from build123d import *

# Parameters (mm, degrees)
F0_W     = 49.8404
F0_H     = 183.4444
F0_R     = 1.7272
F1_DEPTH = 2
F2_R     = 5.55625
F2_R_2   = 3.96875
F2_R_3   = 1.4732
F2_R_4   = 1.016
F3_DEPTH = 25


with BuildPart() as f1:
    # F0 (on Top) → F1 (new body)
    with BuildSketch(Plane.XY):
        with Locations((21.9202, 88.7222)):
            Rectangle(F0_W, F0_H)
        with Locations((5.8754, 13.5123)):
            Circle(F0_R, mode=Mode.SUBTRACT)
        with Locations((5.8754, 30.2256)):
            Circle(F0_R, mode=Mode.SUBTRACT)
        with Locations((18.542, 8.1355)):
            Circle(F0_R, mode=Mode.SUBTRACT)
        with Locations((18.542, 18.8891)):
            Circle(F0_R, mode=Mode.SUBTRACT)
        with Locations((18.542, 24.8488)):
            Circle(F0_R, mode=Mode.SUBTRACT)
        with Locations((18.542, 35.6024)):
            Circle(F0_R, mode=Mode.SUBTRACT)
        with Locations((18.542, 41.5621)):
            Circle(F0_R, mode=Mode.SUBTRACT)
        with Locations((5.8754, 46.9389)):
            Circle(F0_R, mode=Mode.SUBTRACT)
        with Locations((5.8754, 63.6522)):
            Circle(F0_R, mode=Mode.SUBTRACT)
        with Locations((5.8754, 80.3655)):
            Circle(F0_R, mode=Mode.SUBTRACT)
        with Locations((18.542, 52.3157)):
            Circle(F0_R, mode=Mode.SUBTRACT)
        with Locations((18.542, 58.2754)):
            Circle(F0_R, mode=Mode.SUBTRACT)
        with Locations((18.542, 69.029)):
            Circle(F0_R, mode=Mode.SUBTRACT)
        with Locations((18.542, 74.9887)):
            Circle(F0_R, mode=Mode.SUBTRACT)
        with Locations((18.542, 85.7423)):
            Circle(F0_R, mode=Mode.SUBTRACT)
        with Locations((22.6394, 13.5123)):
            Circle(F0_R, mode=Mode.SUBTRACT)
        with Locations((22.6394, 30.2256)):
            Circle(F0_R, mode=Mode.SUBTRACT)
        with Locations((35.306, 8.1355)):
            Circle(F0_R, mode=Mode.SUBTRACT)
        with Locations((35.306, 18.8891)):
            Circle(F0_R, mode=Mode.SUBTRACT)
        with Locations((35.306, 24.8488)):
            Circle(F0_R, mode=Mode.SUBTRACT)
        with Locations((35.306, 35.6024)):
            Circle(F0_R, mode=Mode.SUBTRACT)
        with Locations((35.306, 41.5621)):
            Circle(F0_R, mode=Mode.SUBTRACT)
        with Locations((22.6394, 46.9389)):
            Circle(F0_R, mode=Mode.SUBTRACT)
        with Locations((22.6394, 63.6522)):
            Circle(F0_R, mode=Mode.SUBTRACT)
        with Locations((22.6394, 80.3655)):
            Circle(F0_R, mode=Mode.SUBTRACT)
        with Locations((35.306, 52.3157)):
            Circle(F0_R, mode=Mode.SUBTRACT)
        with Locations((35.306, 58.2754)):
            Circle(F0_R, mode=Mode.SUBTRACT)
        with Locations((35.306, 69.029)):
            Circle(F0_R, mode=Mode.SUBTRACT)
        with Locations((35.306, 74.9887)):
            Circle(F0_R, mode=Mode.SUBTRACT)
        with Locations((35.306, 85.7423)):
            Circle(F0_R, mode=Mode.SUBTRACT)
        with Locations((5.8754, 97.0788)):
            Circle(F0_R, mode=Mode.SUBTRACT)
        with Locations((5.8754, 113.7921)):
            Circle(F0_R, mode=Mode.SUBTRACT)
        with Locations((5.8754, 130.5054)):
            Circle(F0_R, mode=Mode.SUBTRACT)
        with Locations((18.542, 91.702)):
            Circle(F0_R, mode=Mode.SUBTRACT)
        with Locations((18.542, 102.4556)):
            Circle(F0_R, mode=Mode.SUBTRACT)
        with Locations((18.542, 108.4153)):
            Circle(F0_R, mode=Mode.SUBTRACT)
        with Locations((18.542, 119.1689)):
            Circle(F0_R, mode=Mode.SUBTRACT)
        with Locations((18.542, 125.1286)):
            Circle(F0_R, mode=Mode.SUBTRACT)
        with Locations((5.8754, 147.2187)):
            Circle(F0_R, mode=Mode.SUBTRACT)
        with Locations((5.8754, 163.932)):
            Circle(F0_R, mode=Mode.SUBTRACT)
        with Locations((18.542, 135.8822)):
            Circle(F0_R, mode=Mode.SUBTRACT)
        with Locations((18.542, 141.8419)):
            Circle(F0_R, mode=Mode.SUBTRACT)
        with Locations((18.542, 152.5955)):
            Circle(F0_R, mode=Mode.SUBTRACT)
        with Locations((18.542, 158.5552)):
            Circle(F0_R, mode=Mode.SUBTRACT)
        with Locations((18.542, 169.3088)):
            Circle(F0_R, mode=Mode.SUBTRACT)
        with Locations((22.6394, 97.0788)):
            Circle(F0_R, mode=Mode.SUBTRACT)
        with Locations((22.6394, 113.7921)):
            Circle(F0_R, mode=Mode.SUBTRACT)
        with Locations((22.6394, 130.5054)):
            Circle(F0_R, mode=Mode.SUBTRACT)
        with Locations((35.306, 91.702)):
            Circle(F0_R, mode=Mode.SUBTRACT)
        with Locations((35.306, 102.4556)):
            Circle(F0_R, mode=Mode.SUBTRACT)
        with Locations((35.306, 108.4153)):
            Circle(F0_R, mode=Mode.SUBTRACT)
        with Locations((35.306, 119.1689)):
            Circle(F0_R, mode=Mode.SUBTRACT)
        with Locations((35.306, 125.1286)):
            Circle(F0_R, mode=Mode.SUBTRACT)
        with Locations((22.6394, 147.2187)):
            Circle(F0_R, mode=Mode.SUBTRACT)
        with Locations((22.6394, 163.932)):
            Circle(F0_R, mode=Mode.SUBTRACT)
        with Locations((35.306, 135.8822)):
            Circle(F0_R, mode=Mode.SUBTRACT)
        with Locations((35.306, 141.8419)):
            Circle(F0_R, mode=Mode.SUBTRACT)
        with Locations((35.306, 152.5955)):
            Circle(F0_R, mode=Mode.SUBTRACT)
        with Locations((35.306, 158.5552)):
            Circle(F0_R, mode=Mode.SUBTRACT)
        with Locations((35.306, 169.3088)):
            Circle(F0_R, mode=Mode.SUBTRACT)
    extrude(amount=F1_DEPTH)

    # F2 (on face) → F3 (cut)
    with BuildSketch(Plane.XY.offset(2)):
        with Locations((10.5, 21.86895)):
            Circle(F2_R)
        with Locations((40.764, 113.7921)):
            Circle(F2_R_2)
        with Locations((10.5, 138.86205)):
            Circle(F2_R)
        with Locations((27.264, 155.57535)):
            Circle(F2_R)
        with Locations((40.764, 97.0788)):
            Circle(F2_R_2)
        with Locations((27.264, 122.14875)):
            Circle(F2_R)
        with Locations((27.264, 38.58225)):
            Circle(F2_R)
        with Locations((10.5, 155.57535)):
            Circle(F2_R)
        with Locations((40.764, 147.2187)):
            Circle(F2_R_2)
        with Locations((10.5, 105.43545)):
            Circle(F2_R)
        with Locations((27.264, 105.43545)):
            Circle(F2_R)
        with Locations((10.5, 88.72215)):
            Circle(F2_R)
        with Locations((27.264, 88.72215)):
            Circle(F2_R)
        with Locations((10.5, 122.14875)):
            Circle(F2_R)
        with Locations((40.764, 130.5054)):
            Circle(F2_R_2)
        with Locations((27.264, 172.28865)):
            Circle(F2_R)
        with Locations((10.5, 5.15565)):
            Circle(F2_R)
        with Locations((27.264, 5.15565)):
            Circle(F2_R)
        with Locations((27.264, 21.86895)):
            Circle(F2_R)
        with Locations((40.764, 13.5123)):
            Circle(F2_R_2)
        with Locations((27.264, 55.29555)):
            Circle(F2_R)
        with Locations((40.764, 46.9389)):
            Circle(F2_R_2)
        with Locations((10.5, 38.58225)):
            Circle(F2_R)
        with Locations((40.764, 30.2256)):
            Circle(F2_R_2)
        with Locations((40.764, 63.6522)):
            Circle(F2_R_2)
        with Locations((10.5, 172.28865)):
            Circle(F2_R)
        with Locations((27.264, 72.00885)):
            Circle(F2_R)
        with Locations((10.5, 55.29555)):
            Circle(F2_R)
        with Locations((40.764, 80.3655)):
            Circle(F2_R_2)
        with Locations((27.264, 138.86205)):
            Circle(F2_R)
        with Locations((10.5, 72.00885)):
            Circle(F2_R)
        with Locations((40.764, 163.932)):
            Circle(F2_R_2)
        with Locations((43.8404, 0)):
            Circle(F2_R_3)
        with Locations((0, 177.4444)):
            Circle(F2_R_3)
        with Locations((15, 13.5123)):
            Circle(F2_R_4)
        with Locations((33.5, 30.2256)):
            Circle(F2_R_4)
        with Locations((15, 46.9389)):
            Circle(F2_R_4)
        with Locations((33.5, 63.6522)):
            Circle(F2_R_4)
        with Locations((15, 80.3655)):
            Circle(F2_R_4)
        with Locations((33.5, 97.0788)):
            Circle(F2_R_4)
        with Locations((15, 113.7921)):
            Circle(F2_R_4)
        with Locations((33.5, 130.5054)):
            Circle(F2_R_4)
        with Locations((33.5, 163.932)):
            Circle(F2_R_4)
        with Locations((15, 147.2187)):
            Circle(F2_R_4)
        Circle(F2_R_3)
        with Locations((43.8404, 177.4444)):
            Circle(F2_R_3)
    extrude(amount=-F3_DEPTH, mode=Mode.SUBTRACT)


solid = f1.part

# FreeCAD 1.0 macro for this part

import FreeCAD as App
import Part
import Sketcher
Q = App.Units.Quantity

doc = App.newDocument("Part")
body = doc.addObject("PartDesign::Body", "Body")

sketch1 = body.newObject("Sketcher::SketchObject", "Sketch")
sketch1.AttachmentSupport = (doc.getObject("XY_Plane"), [""])
sketch1.MapMode = "FlatFace"
sketch1.addGeometry([
    Part.LineSegment(App.Vector(-3, 180.4444, 0), App.Vector(-3, -3, 0)),
    Part.LineSegment(App.Vector(-3, -3, 0), App.Vector(46.8404, -3, 0)),
    Part.LineSegment(App.Vector(46.8404, -3, 0), App.Vector(46.8404, 180.4444, 0)),
    Part.LineSegment(App.Vector(46.8404, 180.4444, 0), App.Vector(-3, 180.4444, 0)),
    Part.Circle(App.Vector(5.8754, 13.5123, 0), App.Vector(0, 0, 1), 1.7272),
    Part.Circle(App.Vector(5.8754, 30.2256, 0), App.Vector(0, 0, 1), 1.7272),
    Part.Circle(App.Vector(5.8754, 46.9389, 0), App.Vector(0, 0, 1), 1.7272),
    Part.Circle(App.Vector(18.542, 8.1355, 0), App.Vector(0, 0, 1), 1.7272),
    Part.Circle(App.Vector(18.542, 18.8891, 0), App.Vector(0, 0, 1), 1.7272),
    Part.Circle(App.Vector(18.542, 24.8488, 0), App.Vector(0, 0, 1), 1.7272),
    Part.Circle(App.Vector(18.542, 35.6024, 0), App.Vector(0, 0, 1), 1.7272),
    Part.Circle(App.Vector(18.542, 41.5621, 0), App.Vector(0, 0, 1), 1.7272),
    Part.Circle(App.Vector(5.8754, 63.6522, 0), App.Vector(0, 0, 1), 1.7272),
    Part.Circle(App.Vector(5.8754, 80.3655, 0), App.Vector(0, 0, 1), 1.7272),
    Part.Circle(App.Vector(18.542, 52.3157, 0), App.Vector(0, 0, 1), 1.7272),
    Part.Circle(App.Vector(18.542, 58.2754, 0), App.Vector(0, 0, 1), 1.7272),
    Part.Circle(App.Vector(18.542, 69.029, 0), App.Vector(0, 0, 1), 1.7272),
    Part.Circle(App.Vector(18.542, 74.9887, 0), App.Vector(0, 0, 1), 1.7272),
    Part.Circle(App.Vector(18.542, 85.7423, 0), App.Vector(0, 0, 1), 1.7272),
    Part.Circle(App.Vector(22.6394, 13.5123, 0), App.Vector(0, 0, 1), 1.7272),
    Part.Circle(App.Vector(22.6394, 30.2256, 0), App.Vector(0, 0, 1), 1.7272),
    Part.Circle(App.Vector(22.6394, 46.9389, 0), App.Vector(0, 0, 1), 1.7272),
    Part.Circle(App.Vector(35.306, 8.1355, 0), App.Vector(0, 0, 1), 1.7272),
    Part.Circle(App.Vector(35.306, 18.8891, 0), App.Vector(0, 0, 1), 1.7272),
    Part.Circle(App.Vector(35.306, 24.8488, 0), App.Vector(0, 0, 1), 1.7272),
    Part.Circle(App.Vector(35.306, 35.6024, 0), App.Vector(0, 0, 1), 1.7272),
    Part.Circle(App.Vector(35.306, 41.5621, 0), App.Vector(0, 0, 1), 1.7272),
    Part.Circle(App.Vector(22.6394, 63.6522, 0), App.Vector(0, 0, 1), 1.7272),
    Part.Circle(App.Vector(22.6394, 80.3655, 0), App.Vector(0, 0, 1), 1.7272),
    Part.Circle(App.Vector(35.306, 52.3157, 0), App.Vector(0, 0, 1), 1.7272),
    Part.Circle(App.Vector(35.306, 58.2754, 0), App.Vector(0, 0, 1), 1.7272),
    Part.Circle(App.Vector(35.306, 69.029, 0), App.Vector(0, 0, 1), 1.7272),
    Part.Circle(App.Vector(35.306, 74.9887, 0), App.Vector(0, 0, 1), 1.7272),
    Part.Circle(App.Vector(35.306, 85.7423, 0), App.Vector(0, 0, 1), 1.7272),
    Part.Circle(App.Vector(5.8754, 97.0788, 0), App.Vector(0, 0, 1), 1.7272),
    Part.Circle(App.Vector(5.8754, 113.7921, 0), App.Vector(0, 0, 1), 1.7272),
    Part.Circle(App.Vector(18.542, 91.702, 0), App.Vector(0, 0, 1), 1.7272),
    Part.Circle(App.Vector(18.542, 102.4556, 0), App.Vector(0, 0, 1), 1.7272),
    Part.Circle(App.Vector(18.542, 108.4153, 0), App.Vector(0, 0, 1), 1.7272),
    Part.Circle(App.Vector(18.542, 119.1689, 0), App.Vector(0, 0, 1), 1.7272),
    Part.Circle(App.Vector(18.542, 125.1286, 0), App.Vector(0, 0, 1), 1.7272),
    Part.Circle(App.Vector(5.8754, 130.5054, 0), App.Vector(0, 0, 1), 1.7272),
    Part.Circle(App.Vector(5.8754, 147.2187, 0), App.Vector(0, 0, 1), 1.7272),
    Part.Circle(App.Vector(5.8754, 163.932, 0), App.Vector(0, 0, 1), 1.7272),
    Part.Circle(App.Vector(18.542, 135.8822, 0), App.Vector(0, 0, 1), 1.7272),
    Part.Circle(App.Vector(18.542, 141.8419, 0), App.Vector(0, 0, 1), 1.7272),
    Part.Circle(App.Vector(18.542, 152.5955, 0), App.Vector(0, 0, 1), 1.7272),
    Part.Circle(App.Vector(18.542, 158.5552, 0), App.Vector(0, 0, 1), 1.7272),
    Part.Circle(App.Vector(18.542, 169.3088, 0), App.Vector(0, 0, 1), 1.7272),
    Part.Circle(App.Vector(22.6394, 97.0788, 0), App.Vector(0, 0, 1), 1.7272),
    Part.Circle(App.Vector(22.6394, 113.7921, 0), App.Vector(0, 0, 1), 1.7272),
    Part.Circle(App.Vector(35.306, 91.702, 0), App.Vector(0, 0, 1), 1.7272),
    Part.Circle(App.Vector(35.306, 102.4556, 0), App.Vector(0, 0, 1), 1.7272),
    Part.Circle(App.Vector(35.306, 108.4153, 0), App.Vector(0, 0, 1), 1.7272),
    Part.Circle(App.Vector(35.306, 119.1689, 0), App.Vector(0, 0, 1), 1.7272),
    Part.Circle(App.Vector(35.306, 125.1286, 0), App.Vector(0, 0, 1), 1.7272),
    Part.Circle(App.Vector(22.6394, 130.5054, 0), App.Vector(0, 0, 1), 1.7272),
    Part.Circle(App.Vector(22.6394, 147.2187, 0), App.Vector(0, 0, 1), 1.7272),
    Part.Circle(App.Vector(22.6394, 163.932, 0), App.Vector(0, 0, 1), 1.7272),
    Part.Circle(App.Vector(35.306, 135.8822, 0), App.Vector(0, 0, 1), 1.7272),
    Part.Circle(App.Vector(35.306, 141.8419, 0), App.Vector(0, 0, 1), 1.7272),
    Part.Circle(App.Vector(35.306, 152.5955, 0), App.Vector(0, 0, 1), 1.7272),
    Part.Circle(App.Vector(35.306, 158.5552, 0), App.Vector(0, 0, 1), 1.7272),
    Part.Circle(App.Vector(35.306, 169.3088, 0), App.Vector(0, 0, 1), 1.7272),
], False)
sketch1.addConstraint([
    Sketcher.Constraint("Coincident", 0, 2, 1, 1),
    Sketcher.Constraint("Coincident", 1, 2, 2, 1),
    Sketcher.Constraint("Coincident", 2, 2, 3, 1),
    Sketcher.Constraint("Coincident", 3, 2, 0, 1),
    Sketcher.Constraint("Vertical", 0),
    Sketcher.Constraint("Horizontal", 1),
    Sketcher.Constraint("Vertical", 2),
    Sketcher.Constraint("Horizontal", 3),
    Sketcher.Constraint("Equal", 4, 5),
    Sketcher.Constraint("Equal", 5, 6),
    Sketcher.Constraint("Equal", 6, 7),
    Sketcher.Constraint("Equal", 7, 8),
    Sketcher.Constraint("Equal", 8, 9),
    Sketcher.Constraint("Equal", 9, 10),
    Sketcher.Constraint("Equal", 10, 11),
    Sketcher.Constraint("Equal", 11, 12),
    Sketcher.Constraint("Equal", 12, 13),
    Sketcher.Constraint("Equal", 13, 14),
    Sketcher.Constraint("Equal", 14, 15),
    Sketcher.Constraint("Equal", 15, 16),
    Sketcher.Constraint("Equal", 16, 17),
    Sketcher.Constraint("Equal", 17, 18),
    Sketcher.Constraint("Equal", 18, 19),
    Sketcher.Constraint("Equal", 19, 20),
    Sketcher.Constraint("Equal", 20, 21),
    Sketcher.Constraint("Equal", 21, 22),
    Sketcher.Constraint("Equal", 22, 23),
    Sketcher.Constraint("Equal", 23, 24),
    Sketcher.Constraint("Equal", 24, 25),
    Sketcher.Constraint("Equal", 25, 26),
    Sketcher.Constraint("Equal", 26, 27),
    Sketcher.Constraint("Equal", 27, 28),
    Sketcher.Constraint("Equal", 28, 29),
    Sketcher.Constraint("Equal", 29, 30),
    Sketcher.Constraint("Equal", 30, 31),
    Sketcher.Constraint("Equal", 31, 32),
    Sketcher.Constraint("Equal", 32, 33),
    Sketcher.Constraint("Equal", 33, 34),
    Sketcher.Constraint("Equal", 34, 35),
    Sketcher.Constraint("Equal", 35, 36),
    Sketcher.Constraint("Equal", 36, 37),
    Sketcher.Constraint("Equal", 37, 38),
    Sketcher.Constraint("Equal", 38, 39),
    Sketcher.Constraint("Equal", 39, 40),
    Sketcher.Constraint("Equal", 40, 41),
    Sketcher.Constraint("Equal", 41, 42),
    Sketcher.Constraint("Equal", 42, 43),
    Sketcher.Constraint("Equal", 43, 44),
    Sketcher.Constraint("Equal", 44, 45),
    Sketcher.Constraint("Equal", 45, 46),
    Sketcher.Constraint("Equal", 46, 47),
    Sketcher.Constraint("Equal", 47, 48),
    Sketcher.Constraint("Equal", 48, 49),
    Sketcher.Constraint("Equal", 49, 50),
    Sketcher.Constraint("Equal", 50, 51),
    Sketcher.Constraint("Equal", 51, 52),
    Sketcher.Constraint("Equal", 52, 53),
    Sketcher.Constraint("Equal", 53, 54),
    Sketcher.Constraint("Equal", 54, 55),
    Sketcher.Constraint("Equal", 55, 56),
    Sketcher.Constraint("Equal", 56, 57),
    Sketcher.Constraint("Equal", 57, 58),
    Sketcher.Constraint("Equal", 58, 59),
    Sketcher.Constraint("Equal", 59, 60),
    Sketcher.Constraint("Equal", 60, 61),
    Sketcher.Constraint("Equal", 61, 62),
    Sketcher.Constraint("Equal", 62, 63),
    Sketcher.Constraint("Horizontal", 4, 3, 19, 3),
    Sketcher.Constraint("Horizontal", 5, 3, 20, 3),
    Sketcher.Constraint("Horizontal", 6, 3, 21, 3),
    Sketcher.Constraint("Horizontal", 7, 3, 22, 3),
    Sketcher.Constraint("Horizontal", 8, 3, 23, 3),
    Sketcher.Constraint("Horizontal", 9, 3, 24, 3),
    Sketcher.Constraint("Horizontal", 10, 3, 25, 3),
    Sketcher.Constraint("Horizontal", 11, 3, 26, 3),
    Sketcher.Constraint("Horizontal", 12, 3, 27, 3),
    Sketcher.Constraint("Horizontal", 13, 3, 28, 3),
    Sketcher.Constraint("Horizontal", 14, 3, 29, 3),
    Sketcher.Constraint("Horizontal", 15, 3, 30, 3),
    Sketcher.Constraint("Horizontal", 16, 3, 31, 3),
    Sketcher.Constraint("Horizontal", 17, 3, 32, 3),
    Sketcher.Constraint("Horizontal", 18, 3, 33, 3),
    Sketcher.Constraint("Horizontal", 34, 3, 49, 3),
    Sketcher.Constraint("Horizontal", 35, 3, 50, 3),
    Sketcher.Constraint("Horizontal", 36, 3, 51, 3),
    Sketcher.Constraint("Horizontal", 37, 3, 52, 3),
    Sketcher.Constraint("Horizontal", 38, 3, 53, 3),
    Sketcher.Constraint("Horizontal", 39, 3, 54, 3),
    Sketcher.Constraint("Horizontal", 40, 3, 55, 3),
    Sketcher.Constraint("Horizontal", 41, 3, 56, 3),
    Sketcher.Constraint("Horizontal", 42, 3, 57, 3),
    Sketcher.Constraint("Horizontal", 43, 3, 58, 3),
    Sketcher.Constraint("Horizontal", 44, 3, 59, 3),
    Sketcher.Constraint("Horizontal", 45, 3, 60, 3),
    Sketcher.Constraint("Horizontal", 46, 3, 61, 3),
    Sketcher.Constraint("Horizontal", 47, 3, 62, 3),
    Sketcher.Constraint("Horizontal", 48, 3, 63, 3),
    Sketcher.Constraint("Vertical", 4, 3, 5, 3),
    Sketcher.Constraint("Vertical", 5, 3, 6, 3),
    Sketcher.Constraint("Vertical", 7, 3, 8, 3),
    Sketcher.Constraint("Vertical", 8, 3, 9, 3),
    Sketcher.Constraint("Vertical", 9, 3, 10, 3),
    Sketcher.Constraint("Vertical", 10, 3, 11, 3),
    Sketcher.Constraint("Vertical", 6, 3, 12, 3),
    Sketcher.Constraint("Vertical", 12, 3, 13, 3),
    Sketcher.Constraint("Vertical", 11, 3, 14, 3),
    Sketcher.Constraint("Vertical", 14, 3, 15, 3),
    Sketcher.Constraint("Vertical", 15, 3, 16, 3),
    Sketcher.Constraint("Vertical", 16, 3, 17, 3),
    Sketcher.Constraint("Vertical", 17, 3, 18, 3),
    Sketcher.Constraint("Vertical", 19, 3, 20, 3),
    Sketcher.Constraint("Vertical", 20, 3, 21, 3),
    Sketcher.Constraint("Vertical", 22, 3, 23, 3),
    Sketcher.Constraint("Vertical", 23, 3, 24, 3),
    Sketcher.Constraint("Vertical", 24, 3, 25, 3),
    Sketcher.Constraint("Vertical", 25, 3, 26, 3),
    Sketcher.Constraint("Vertical", 21, 3, 27, 3),
    Sketcher.Constraint("Vertical", 27, 3, 28, 3),
    Sketcher.Constraint("Vertical", 26, 3, 29, 3),
    Sketcher.Constraint("Vertical", 29, 3, 30, 3),
    Sketcher.Constraint("Vertical", 30, 3, 31, 3),
    Sketcher.Constraint("Vertical", 31, 3, 32, 3),
    Sketcher.Constraint("Vertical", 32, 3, 33, 3),
    Sketcher.Constraint("Vertical", 13, 3, 34, 3),
    Sketcher.Constraint("Vertical", 34, 3, 35, 3),
    Sketcher.Constraint("Vertical", 18, 3, 36, 3),
    Sketcher.Constraint("Vertical", 36, 3, 37, 3),
    Sketcher.Constraint("Vertical", 37, 3, 38, 3),
    Sketcher.Constraint("Vertical", 38, 3, 39, 3),
    Sketcher.Constraint("Vertical", 39, 3, 40, 3),
    Sketcher.Constraint("Vertical", 35, 3, 41, 3),
    Sketcher.Constraint("Vertical", 41, 3, 42, 3),
    Sketcher.Constraint("Vertical", 42, 3, 43, 3),
    Sketcher.Constraint("Vertical", 40, 3, 44, 3),
    Sketcher.Constraint("Vertical", 44, 3, 45, 3),
    Sketcher.Constraint("Vertical", 45, 3, 46, 3),
    Sketcher.Constraint("Vertical", 46, 3, 47, 3),
    Sketcher.Constraint("Vertical", 47, 3, 48, 3),
    Sketcher.Constraint("Vertical", 28, 3, 49, 3),
    Sketcher.Constraint("Vertical", 49, 3, 50, 3),
    Sketcher.Constraint("Vertical", 33, 3, 51, 3),
    Sketcher.Constraint("Vertical", 51, 3, 52, 3),
    Sketcher.Constraint("Vertical", 52, 3, 53, 3),
    Sketcher.Constraint("Vertical", 53, 3, 54, 3),
    Sketcher.Constraint("Vertical", 54, 3, 55, 3),
    Sketcher.Constraint("Vertical", 50, 3, 56, 3),
    Sketcher.Constraint("Vertical", 56, 3, 57, 3),
    Sketcher.Constraint("Vertical", 57, 3, 58, 3),
    Sketcher.Constraint("Vertical", 55, 3, 59, 3),
    Sketcher.Constraint("Vertical", 59, 3, 60, 3),
    Sketcher.Constraint("Vertical", 60, 3, 61, 3),
    Sketcher.Constraint("Vertical", 61, 3, 62, 3),
    Sketcher.Constraint("Vertical", 62, 3, 63, 3),
    Sketcher.Constraint("Diameter", 4, Q("0.136 in")),
    Sketcher.Constraint("DistanceX", -1, 1, 7, 3, Q("0.73 in")),
    Sketcher.Constraint("DistanceX", -1, 1, 22, 3, Q("1.39 in")),
    Sketcher.Constraint("DistanceY", -1, 1, 34, 3, Q("3.822 in")),
    Sketcher.Constraint("DistanceX", 1, 1, 1, 2, Q("49.8404 mm")),
    Sketcher.Constraint("DistanceY", 0, 2, 0, 1, Q("183.4444 mm")),
    Sketcher.Constraint("DistanceX", -1, 1, 4, 3, Q("5.8754 mm")),
    Sketcher.Constraint("DistanceY", -1, 1, 4, 3, Q("13.5123 mm")),
    Sketcher.Constraint("DistanceY", -1, 1, 5, 3, Q("30.2256 mm")),
    Sketcher.Constraint("DistanceY", -1, 1, 6, 3, Q("46.9389 mm")),
    Sketcher.Constraint("DistanceY", -1, 1, 7, 3, Q("8.1355 mm")),
    Sketcher.Constraint("DistanceY", -1, 1, 8, 3, Q("18.8891 mm")),
    Sketcher.Constraint("DistanceY", -1, 1, 9, 3, Q("24.8488 mm")),
    Sketcher.Constraint("DistanceY", -1, 1, 10, 3, Q("35.6024 mm")),
    Sketcher.Constraint("DistanceY", -1, 1, 11, 3, Q("41.5621 mm")),
    Sketcher.Constraint("DistanceY", -1, 1, 12, 3, Q("63.6522 mm")),
    Sketcher.Constraint("DistanceY", -1, 1, 13, 3, Q("80.3655 mm")),
    Sketcher.Constraint("DistanceY", -1, 1, 14, 3, Q("52.3157 mm")),
    Sketcher.Constraint("DistanceY", -1, 1, 15, 3, Q("58.2754 mm")),
    Sketcher.Constraint("DistanceY", -1, 1, 16, 3, Q("69.029 mm")),
    Sketcher.Constraint("DistanceY", -1, 1, 17, 3, Q("74.9887 mm")),
    Sketcher.Constraint("DistanceY", -1, 1, 18, 3, Q("85.7423 mm")),
    Sketcher.Constraint("DistanceX", -1, 1, 19, 3, Q("22.6394 mm")),
    Sketcher.Constraint("DistanceY", -1, 1, 35, 3, Q("113.7921 mm")),
    Sketcher.Constraint("DistanceY", -1, 1, 36, 3, Q("91.702 mm")),
    Sketcher.Constraint("DistanceY", -1, 1, 37, 3, Q("102.4556 mm")),
    Sketcher.Constraint("DistanceY", -1, 1, 38, 3, Q("108.4153 mm")),
    Sketcher.Constraint("DistanceY", -1, 1, 39, 3, Q("119.1689 mm")),
    Sketcher.Constraint("DistanceY", -1, 1, 40, 3, Q("125.1286 mm")),
    Sketcher.Constraint("DistanceY", -1, 1, 41, 3, Q("130.5054 mm")),
    Sketcher.Constraint("DistanceY", -1, 1, 42, 3, Q("147.2187 mm")),
    Sketcher.Constraint("DistanceY", -1, 1, 43, 3, Q("163.932 mm")),
    Sketcher.Constraint("DistanceY", -1, 1, 44, 3, Q("135.8822 mm")),
    Sketcher.Constraint("DistanceY", -1, 1, 45, 3, Q("141.8419 mm")),
    Sketcher.Constraint("DistanceY", -1, 1, 46, 3, Q("152.5955 mm")),
    Sketcher.Constraint("DistanceY", -1, 1, 47, 3, Q("158.5552 mm")),
    Sketcher.Constraint("DistanceY", -1, 1, 48, 3, Q("169.3088 mm")),
    Sketcher.Constraint("DistanceX", 0, 2, -1, 1, Q("3 mm")),
    Sketcher.Constraint("DistanceY", 0, 2, -1, 1, Q("3 mm")),
])
pad1 = body.newObject("PartDesign::Pad", "Pad")
pad1.Profile = sketch1
pad1.Length = 2

sketch2 = body.newObject("Sketcher::SketchObject", "Sketch001")
sketch2.AttachmentSupport = (doc.getObject("XY_Plane"), [""])
sketch2.MapMode = "FlatFace"
sketch2.AttachmentOffset = App.Placement(App.Vector(0, 0, 2), App.Rotation())
sketch2.addGeometry([
    Part.Circle(App.Vector(10.5, 21.86895, 0), App.Vector(0, 0, 1), 5.55625),
    Part.Circle(App.Vector(40.764, 113.7921, 0), App.Vector(0, 0, 1), 3.96875),
    Part.Circle(App.Vector(10.5, 138.86205, 0), App.Vector(0, 0, 1), 5.55625),
    Part.Circle(App.Vector(27.264, 155.57535, 0), App.Vector(0, 0, 1), 5.55625),
    Part.Circle(App.Vector(40.764, 97.0788, 0), App.Vector(0, 0, 1), 3.96875),
    Part.Circle(App.Vector(27.264, 122.14875, 0), App.Vector(0, 0, 1), 5.55625),
    Part.Circle(App.Vector(27.264, 38.58225, 0), App.Vector(0, 0, 1), 5.55625),
    Part.Circle(App.Vector(10.5, 155.57535, 0), App.Vector(0, 0, 1), 5.55625),
    Part.Circle(App.Vector(40.764, 147.2187, 0), App.Vector(0, 0, 1), 3.96875),
    Part.Circle(App.Vector(10.5, 105.43545, 0), App.Vector(0, 0, 1), 5.55625),
    Part.Circle(App.Vector(27.264, 105.43545, 0), App.Vector(0, 0, 1), 5.55625),
    Part.Circle(App.Vector(10.5, 88.72215, 0), App.Vector(0, 0, 1), 5.55625),
    Part.Circle(App.Vector(27.264, 88.72215, 0), App.Vector(0, 0, 1), 5.55625),
    Part.Circle(App.Vector(10.5, 122.14875, 0), App.Vector(0, 0, 1), 5.55625),
    Part.Circle(App.Vector(40.764, 130.5054, 0), App.Vector(0, 0, 1), 3.96875),
    Part.Circle(App.Vector(27.264, 172.28865, 0), App.Vector(0, 0, 1), 5.55625),
    Part.Circle(App.Vector(10.5, 5.15565, 0), App.Vector(0, 0, 1), 5.55625),
    Part.Circle(App.Vector(27.264, 5.15565, 0), App.Vector(0, 0, 1), 5.55625),
    Part.Circle(App.Vector(27.264, 21.86895, 0), App.Vector(0, 0, 1), 5.55625),
    Part.Circle(App.Vector(40.764, 13.5123, 0), App.Vector(0, 0, 1), 3.96875),
    Part.Circle(App.Vector(27.264, 55.29555, 0), App.Vector(0, 0, 1), 5.55625),
    Part.Circle(App.Vector(40.764, 46.9389, 0), App.Vector(0, 0, 1), 3.96875),
    Part.Circle(App.Vector(10.5, 38.58225, 0), App.Vector(0, 0, 1), 5.55625),
    Part.Circle(App.Vector(40.764, 30.2256, 0), App.Vector(0, 0, 1), 3.96875),
    Part.Circle(App.Vector(40.764, 63.6522, 0), App.Vector(0, 0, 1), 3.96875),
    Part.Circle(App.Vector(10.5, 172.28865, 0), App.Vector(0, 0, 1), 5.55625),
    Part.Circle(App.Vector(27.264, 72.00885, 0), App.Vector(0, 0, 1), 5.55625),
    Part.Circle(App.Vector(10.5, 55.29555, 0), App.Vector(0, 0, 1), 5.55625),
    Part.Circle(App.Vector(40.764, 80.3655, 0), App.Vector(0, 0, 1), 3.96875),
    Part.Circle(App.Vector(27.264, 138.86205, 0), App.Vector(0, 0, 1), 5.55625),
    Part.Circle(App.Vector(10.5, 72.00885, 0), App.Vector(0, 0, 1), 5.55625),
    Part.Circle(App.Vector(40.764, 163.932, 0), App.Vector(0, 0, 1), 3.96875),
    Part.Circle(App.Vector(43.8404, 0, 0), App.Vector(0, 0, 1), 1.4732),
    Part.Circle(App.Vector(0, 177.4444, 0), App.Vector(0, 0, 1), 1.4732),
    Part.Circle(App.Vector(15, 13.5123, 0), App.Vector(0, 0, 1), 1.016),
    Part.Circle(App.Vector(33.5, 30.2256, 0), App.Vector(0, 0, 1), 1.016),
    Part.Circle(App.Vector(15, 46.9389, 0), App.Vector(0, 0, 1), 1.016),
    Part.Circle(App.Vector(33.5, 63.6522, 0), App.Vector(0, 0, 1), 1.016),
    Part.Circle(App.Vector(15, 80.3655, 0), App.Vector(0, 0, 1), 1.016),
    Part.Circle(App.Vector(33.5, 97.0788, 0), App.Vector(0, 0, 1), 1.016),
    Part.Circle(App.Vector(15, 113.7921, 0), App.Vector(0, 0, 1), 1.016),
    Part.Circle(App.Vector(33.5, 130.5054, 0), App.Vector(0, 0, 1), 1.016),
    Part.Circle(App.Vector(33.5, 163.932, 0), App.Vector(0, 0, 1), 1.016),
    Part.Circle(App.Vector(15, 147.2187, 0), App.Vector(0, 0, 1), 1.016),
    Part.Circle(App.Vector(0, 0, 0), App.Vector(0, 0, 1), 1.4732),
    Part.Circle(App.Vector(43.8404, 177.4444, 0), App.Vector(0, 0, 1), 1.4732),
], False)
sketch2.addConstraint([
    Sketcher.Constraint("Coincident", 44, 3, -1, 1),
    Sketcher.Constraint("Equal", 0, 2),
    Sketcher.Constraint("Equal", 2, 3),
    Sketcher.Constraint("Equal", 1, 4),
    Sketcher.Constraint("Equal", 3, 5),
    Sketcher.Constraint("Equal", 5, 6),
    Sketcher.Constraint("Equal", 6, 7),
    Sketcher.Constraint("Equal", 4, 8),
    Sketcher.Constraint("Equal", 7, 9),
    Sketcher.Constraint("Equal", 9, 10),
    Sketcher.Constraint("Equal", 10, 11),
    Sketcher.Constraint("Equal", 11, 12),
    Sketcher.Constraint("Equal", 12, 13),
    Sketcher.Constraint("Equal", 8, 14),
    Sketcher.Constraint("Equal", 13, 15),
    Sketcher.Constraint("Equal", 15, 16),
    Sketcher.Constraint("Equal", 16, 17),
    Sketcher.Constraint("Equal", 17, 18),
    Sketcher.Constraint("Equal", 14, 19),
    Sketcher.Constraint("Equal", 18, 20),
    Sketcher.Constraint("Equal", 19, 21),
    Sketcher.Constraint("Equal", 20, 22),
    Sketcher.Constraint("Equal", 21, 23),
    Sketcher.Constraint("Equal", 23, 24),
    Sketcher.Constraint("Equal", 22, 25),
    Sketcher.Constraint("Equal", 25, 26),
    Sketcher.Constraint("Equal", 26, 27),
    Sketcher.Constraint("Equal", 24, 28),
    Sketcher.Constraint("Equal", 27, 29),
    Sketcher.Constraint("Equal", 29, 30),
    Sketcher.Constraint("Equal", 28, 31),
    Sketcher.Constraint("Equal", 32, 33),
    Sketcher.Constraint("Equal", 34, 35),
    Sketcher.Constraint("Equal", 35, 36),
    Sketcher.Constraint("Equal", 36, 37),
    Sketcher.Constraint("Equal", 37, 38),
    Sketcher.Constraint("Equal", 38, 39),
    Sketcher.Constraint("Equal", 39, 40),
    Sketcher.Constraint("Equal", 40, 41),
    Sketcher.Constraint("Equal", 41, 42),
    Sketcher.Constraint("Equal", 42, 43),
    Sketcher.Constraint("Equal", 33, 44),
    Sketcher.Constraint("Equal", 44, 45),
    Sketcher.Constraint("PointOnObject", 32, 3, -1),
    Sketcher.Constraint("PointOnObject", 33, 3, -2),
    Sketcher.Constraint("Horizontal", 3, 3, 7, 3),
    Sketcher.Constraint("Horizontal", 9, 3, 10, 3),
    Sketcher.Constraint("Horizontal", 11, 3, 12, 3),
    Sketcher.Constraint("Horizontal", 5, 3, 13, 3),
    Sketcher.Constraint("Horizontal", 16, 3, 17, 3),
    Sketcher.Constraint("Horizontal", 0, 3, 18, 3),
    Sketcher.Constraint("Horizontal", 6, 3, 22, 3),
    Sketcher.Constraint("Horizontal", 15, 3, 25, 3),
    Sketcher.Constraint("Horizontal", 20, 3, 27, 3),
    Sketcher.Constraint("Horizontal", 2, 3, 29, 3),
    Sketcher.Constraint("Horizontal", 26, 3, 30, 3),
    Sketcher.Constraint("Horizontal", 19, 3, 34, 3),
    Sketcher.Constraint("Horizontal", 23, 3, 35, 3),
    Sketcher.Constraint("Horizontal", 21, 3, 36, 3),
    Sketcher.Constraint("Horizontal", 24, 3, 37, 3),
    Sketcher.Constraint("Horizontal", 28, 3, 38, 3),
    Sketcher.Constraint("Horizontal", 4, 3, 39, 3),
    Sketcher.Constraint("Horizontal", 1, 3, 40, 3),
    Sketcher.Constraint("Horizontal", 14, 3, 41, 3),
    Sketcher.Constraint("Horizontal", 31, 3, 42, 3),
    Sketcher.Constraint("Horizontal", 8, 3, 43, 3),
    Sketcher.Constraint("Horizontal", 33, 3, 45, 3),
    Sketcher.Constraint("Vertical", 0, 3, 2, 3),
    Sketcher.Constraint("Vertical", 1, 3, 4, 3),
    Sketcher.Constraint("Vertical", 3, 3, 5, 3),
    Sketcher.Constraint("Vertical", 5, 3, 6, 3),
    Sketcher.Constraint("Vertical", 2, 3, 7, 3),
    Sketcher.Constraint("Vertical", 4, 3, 8, 3),
    Sketcher.Constraint("Vertical", 7, 3, 9, 3),
    Sketcher.Constraint("Vertical", 6, 3, 10, 3),
    Sketcher.Constraint("Vertical", 9, 3, 11, 3),
    Sketcher.Constraint("Vertical", 10, 3, 12, 3),
    Sketcher.Constraint("Vertical", 11, 3, 13, 3),
    Sketcher.Constraint("Vertical", 8, 3, 14, 3),
    Sketcher.Constraint("Vertical", 12, 3, 15, 3),
    Sketcher.Constraint("Vertical", 13, 3, 16, 3),
    Sketcher.Constraint("Vertical", 15, 3, 17, 3),
    Sketcher.Constraint("Vertical", 17, 3, 18, 3),
    Sketcher.Constraint("Vertical", 14, 3, 19, 3),
    Sketcher.Constraint("Vertical", 18, 3, 20, 3),
    Sketcher.Constraint("Vertical", 19, 3, 21, 3),
    Sketcher.Constraint("Vertical", 16, 3, 22, 3),
    Sketcher.Constraint("Vertical", 21, 3, 23, 3),
    Sketcher.Constraint("Vertical", 23, 3, 24, 3),
    Sketcher.Constraint("Vertical", 22, 3, 25, 3),
    Sketcher.Constraint("Vertical", 20, 3, 26, 3),
    Sketcher.Constraint("Vertical", 25, 3, 27, 3),
    Sketcher.Constraint("Vertical", 24, 3, 28, 3),
    Sketcher.Constraint("Vertical", 26, 3, 29, 3),
    Sketcher.Constraint("Vertical", 27, 3, 30, 3),
    Sketcher.Constraint("Vertical", 28, 3, 31, 3),
    Sketcher.Constraint("Vertical", 34, 3, 36, 3),
    Sketcher.Constraint("Vertical", 35, 3, 37, 3),
    Sketcher.Constraint("Vertical", 36, 3, 38, 3),
    Sketcher.Constraint("Vertical", 37, 3, 39, 3),
    Sketcher.Constraint("Vertical", 38, 3, 40, 3),
    Sketcher.Constraint("Vertical", 39, 3, 41, 3),
    Sketcher.Constraint("Vertical", 41, 3, 42, 3),
    Sketcher.Constraint("Vertical", 40, 3, 43, 3),
    Sketcher.Constraint("Vertical", 32, 3, 45, 3),
    Sketcher.Constraint("Diameter", 34, Q("0.08 in")),
    Sketcher.Constraint("Diameter", 0, Q("0.4375 in")),
    Sketcher.Constraint("Diameter", 1, Q("0.3125 in")),
    Sketcher.Constraint("Diameter", 32, Q("0.116 in")),
    Sketcher.Constraint("DistanceX", 2, 3, 3, 3, Q("0.66 in")),
    Sketcher.Constraint("DistanceY", -1, 1, 4, 3, Q("3.822 in")),
    Sketcher.Constraint("DistanceX", -1, 1, 32, 3, Q("1.726 in")),
    Sketcher.Constraint("DistanceY", -1, 1, 33, 3, Q("6.986 in")),
    Sketcher.Constraint("DistanceX", -1, 1, 0, 3, Q("10.5 mm")),
    Sketcher.Constraint("DistanceX", -1, 1, 1, 3, Q("40.764 mm")),
    Sketcher.Constraint("DistanceY", -1, 1, 1, 3, Q("113.7921 mm")),
    Sketcher.Constraint("DistanceY", -1, 1, 8, 3, Q("147.2187 mm")),
    Sketcher.Constraint("DistanceY", -1, 1, 14, 3, Q("130.5054 mm")),
    Sketcher.Constraint("DistanceY", -1, 1, 19, 3, Q("13.5123 mm")),
    Sketcher.Constraint("DistanceY", -1, 1, 21, 3, Q("46.9389 mm")),
    Sketcher.Constraint("DistanceY", -1, 1, 23, 3, Q("30.2256 mm")),
    Sketcher.Constraint("DistanceY", -1, 1, 24, 3, Q("63.6522 mm")),
    Sketcher.Constraint("DistanceY", -1, 1, 28, 3, Q("80.3655 mm")),
    Sketcher.Constraint("DistanceY", -1, 1, 31, 3, Q("163.932 mm")),
    Sketcher.Constraint("DistanceX", -1, 1, 34, 3, Q("15 mm")),
    Sketcher.Constraint("DistanceX", -1, 1, 35, 3, Q("33.5 mm")),
    Sketcher.Constraint("DistanceY", 0, 3, 2, 3, Q("116.9931 mm")),
    Sketcher.Constraint("DistanceY", 2, 3, 3, 3, Q("16.7133 mm")),
    Sketcher.Constraint("DistanceY", 5, 3, 2, 3, Q("16.7133 mm")),
    Sketcher.Constraint("DistanceY", 0, 3, 6, 3, Q("16.7133 mm")),
    Sketcher.Constraint("DistanceY", 9, 3, 5, 3, Q("16.7133 mm")),
    Sketcher.Constraint("DistanceY", 11, 3, 9, 3, Q("16.7133 mm")),
    Sketcher.Constraint("DistanceY", 3, 3, 15, 3, Q("16.7133 mm")),
    Sketcher.Constraint("DistanceY", 16, 3, 0, 3, Q("16.7133 mm")),
    Sketcher.Constraint("DistanceY", 6, 3, 20, 3, Q("16.7133 mm")),
    Sketcher.Constraint("DistanceY", 20, 3, 26, 3, Q("16.7133 mm")),
    Sketcher.Constraint("DistanceY", -1, 1, 0, 3, Q("21.86895 mm")),
])
pocket1 = body.newObject("PartDesign::Pocket", "Pocket")
pocket1.Profile = sketch2
pocket1.Length = 25

doc.recompute()
